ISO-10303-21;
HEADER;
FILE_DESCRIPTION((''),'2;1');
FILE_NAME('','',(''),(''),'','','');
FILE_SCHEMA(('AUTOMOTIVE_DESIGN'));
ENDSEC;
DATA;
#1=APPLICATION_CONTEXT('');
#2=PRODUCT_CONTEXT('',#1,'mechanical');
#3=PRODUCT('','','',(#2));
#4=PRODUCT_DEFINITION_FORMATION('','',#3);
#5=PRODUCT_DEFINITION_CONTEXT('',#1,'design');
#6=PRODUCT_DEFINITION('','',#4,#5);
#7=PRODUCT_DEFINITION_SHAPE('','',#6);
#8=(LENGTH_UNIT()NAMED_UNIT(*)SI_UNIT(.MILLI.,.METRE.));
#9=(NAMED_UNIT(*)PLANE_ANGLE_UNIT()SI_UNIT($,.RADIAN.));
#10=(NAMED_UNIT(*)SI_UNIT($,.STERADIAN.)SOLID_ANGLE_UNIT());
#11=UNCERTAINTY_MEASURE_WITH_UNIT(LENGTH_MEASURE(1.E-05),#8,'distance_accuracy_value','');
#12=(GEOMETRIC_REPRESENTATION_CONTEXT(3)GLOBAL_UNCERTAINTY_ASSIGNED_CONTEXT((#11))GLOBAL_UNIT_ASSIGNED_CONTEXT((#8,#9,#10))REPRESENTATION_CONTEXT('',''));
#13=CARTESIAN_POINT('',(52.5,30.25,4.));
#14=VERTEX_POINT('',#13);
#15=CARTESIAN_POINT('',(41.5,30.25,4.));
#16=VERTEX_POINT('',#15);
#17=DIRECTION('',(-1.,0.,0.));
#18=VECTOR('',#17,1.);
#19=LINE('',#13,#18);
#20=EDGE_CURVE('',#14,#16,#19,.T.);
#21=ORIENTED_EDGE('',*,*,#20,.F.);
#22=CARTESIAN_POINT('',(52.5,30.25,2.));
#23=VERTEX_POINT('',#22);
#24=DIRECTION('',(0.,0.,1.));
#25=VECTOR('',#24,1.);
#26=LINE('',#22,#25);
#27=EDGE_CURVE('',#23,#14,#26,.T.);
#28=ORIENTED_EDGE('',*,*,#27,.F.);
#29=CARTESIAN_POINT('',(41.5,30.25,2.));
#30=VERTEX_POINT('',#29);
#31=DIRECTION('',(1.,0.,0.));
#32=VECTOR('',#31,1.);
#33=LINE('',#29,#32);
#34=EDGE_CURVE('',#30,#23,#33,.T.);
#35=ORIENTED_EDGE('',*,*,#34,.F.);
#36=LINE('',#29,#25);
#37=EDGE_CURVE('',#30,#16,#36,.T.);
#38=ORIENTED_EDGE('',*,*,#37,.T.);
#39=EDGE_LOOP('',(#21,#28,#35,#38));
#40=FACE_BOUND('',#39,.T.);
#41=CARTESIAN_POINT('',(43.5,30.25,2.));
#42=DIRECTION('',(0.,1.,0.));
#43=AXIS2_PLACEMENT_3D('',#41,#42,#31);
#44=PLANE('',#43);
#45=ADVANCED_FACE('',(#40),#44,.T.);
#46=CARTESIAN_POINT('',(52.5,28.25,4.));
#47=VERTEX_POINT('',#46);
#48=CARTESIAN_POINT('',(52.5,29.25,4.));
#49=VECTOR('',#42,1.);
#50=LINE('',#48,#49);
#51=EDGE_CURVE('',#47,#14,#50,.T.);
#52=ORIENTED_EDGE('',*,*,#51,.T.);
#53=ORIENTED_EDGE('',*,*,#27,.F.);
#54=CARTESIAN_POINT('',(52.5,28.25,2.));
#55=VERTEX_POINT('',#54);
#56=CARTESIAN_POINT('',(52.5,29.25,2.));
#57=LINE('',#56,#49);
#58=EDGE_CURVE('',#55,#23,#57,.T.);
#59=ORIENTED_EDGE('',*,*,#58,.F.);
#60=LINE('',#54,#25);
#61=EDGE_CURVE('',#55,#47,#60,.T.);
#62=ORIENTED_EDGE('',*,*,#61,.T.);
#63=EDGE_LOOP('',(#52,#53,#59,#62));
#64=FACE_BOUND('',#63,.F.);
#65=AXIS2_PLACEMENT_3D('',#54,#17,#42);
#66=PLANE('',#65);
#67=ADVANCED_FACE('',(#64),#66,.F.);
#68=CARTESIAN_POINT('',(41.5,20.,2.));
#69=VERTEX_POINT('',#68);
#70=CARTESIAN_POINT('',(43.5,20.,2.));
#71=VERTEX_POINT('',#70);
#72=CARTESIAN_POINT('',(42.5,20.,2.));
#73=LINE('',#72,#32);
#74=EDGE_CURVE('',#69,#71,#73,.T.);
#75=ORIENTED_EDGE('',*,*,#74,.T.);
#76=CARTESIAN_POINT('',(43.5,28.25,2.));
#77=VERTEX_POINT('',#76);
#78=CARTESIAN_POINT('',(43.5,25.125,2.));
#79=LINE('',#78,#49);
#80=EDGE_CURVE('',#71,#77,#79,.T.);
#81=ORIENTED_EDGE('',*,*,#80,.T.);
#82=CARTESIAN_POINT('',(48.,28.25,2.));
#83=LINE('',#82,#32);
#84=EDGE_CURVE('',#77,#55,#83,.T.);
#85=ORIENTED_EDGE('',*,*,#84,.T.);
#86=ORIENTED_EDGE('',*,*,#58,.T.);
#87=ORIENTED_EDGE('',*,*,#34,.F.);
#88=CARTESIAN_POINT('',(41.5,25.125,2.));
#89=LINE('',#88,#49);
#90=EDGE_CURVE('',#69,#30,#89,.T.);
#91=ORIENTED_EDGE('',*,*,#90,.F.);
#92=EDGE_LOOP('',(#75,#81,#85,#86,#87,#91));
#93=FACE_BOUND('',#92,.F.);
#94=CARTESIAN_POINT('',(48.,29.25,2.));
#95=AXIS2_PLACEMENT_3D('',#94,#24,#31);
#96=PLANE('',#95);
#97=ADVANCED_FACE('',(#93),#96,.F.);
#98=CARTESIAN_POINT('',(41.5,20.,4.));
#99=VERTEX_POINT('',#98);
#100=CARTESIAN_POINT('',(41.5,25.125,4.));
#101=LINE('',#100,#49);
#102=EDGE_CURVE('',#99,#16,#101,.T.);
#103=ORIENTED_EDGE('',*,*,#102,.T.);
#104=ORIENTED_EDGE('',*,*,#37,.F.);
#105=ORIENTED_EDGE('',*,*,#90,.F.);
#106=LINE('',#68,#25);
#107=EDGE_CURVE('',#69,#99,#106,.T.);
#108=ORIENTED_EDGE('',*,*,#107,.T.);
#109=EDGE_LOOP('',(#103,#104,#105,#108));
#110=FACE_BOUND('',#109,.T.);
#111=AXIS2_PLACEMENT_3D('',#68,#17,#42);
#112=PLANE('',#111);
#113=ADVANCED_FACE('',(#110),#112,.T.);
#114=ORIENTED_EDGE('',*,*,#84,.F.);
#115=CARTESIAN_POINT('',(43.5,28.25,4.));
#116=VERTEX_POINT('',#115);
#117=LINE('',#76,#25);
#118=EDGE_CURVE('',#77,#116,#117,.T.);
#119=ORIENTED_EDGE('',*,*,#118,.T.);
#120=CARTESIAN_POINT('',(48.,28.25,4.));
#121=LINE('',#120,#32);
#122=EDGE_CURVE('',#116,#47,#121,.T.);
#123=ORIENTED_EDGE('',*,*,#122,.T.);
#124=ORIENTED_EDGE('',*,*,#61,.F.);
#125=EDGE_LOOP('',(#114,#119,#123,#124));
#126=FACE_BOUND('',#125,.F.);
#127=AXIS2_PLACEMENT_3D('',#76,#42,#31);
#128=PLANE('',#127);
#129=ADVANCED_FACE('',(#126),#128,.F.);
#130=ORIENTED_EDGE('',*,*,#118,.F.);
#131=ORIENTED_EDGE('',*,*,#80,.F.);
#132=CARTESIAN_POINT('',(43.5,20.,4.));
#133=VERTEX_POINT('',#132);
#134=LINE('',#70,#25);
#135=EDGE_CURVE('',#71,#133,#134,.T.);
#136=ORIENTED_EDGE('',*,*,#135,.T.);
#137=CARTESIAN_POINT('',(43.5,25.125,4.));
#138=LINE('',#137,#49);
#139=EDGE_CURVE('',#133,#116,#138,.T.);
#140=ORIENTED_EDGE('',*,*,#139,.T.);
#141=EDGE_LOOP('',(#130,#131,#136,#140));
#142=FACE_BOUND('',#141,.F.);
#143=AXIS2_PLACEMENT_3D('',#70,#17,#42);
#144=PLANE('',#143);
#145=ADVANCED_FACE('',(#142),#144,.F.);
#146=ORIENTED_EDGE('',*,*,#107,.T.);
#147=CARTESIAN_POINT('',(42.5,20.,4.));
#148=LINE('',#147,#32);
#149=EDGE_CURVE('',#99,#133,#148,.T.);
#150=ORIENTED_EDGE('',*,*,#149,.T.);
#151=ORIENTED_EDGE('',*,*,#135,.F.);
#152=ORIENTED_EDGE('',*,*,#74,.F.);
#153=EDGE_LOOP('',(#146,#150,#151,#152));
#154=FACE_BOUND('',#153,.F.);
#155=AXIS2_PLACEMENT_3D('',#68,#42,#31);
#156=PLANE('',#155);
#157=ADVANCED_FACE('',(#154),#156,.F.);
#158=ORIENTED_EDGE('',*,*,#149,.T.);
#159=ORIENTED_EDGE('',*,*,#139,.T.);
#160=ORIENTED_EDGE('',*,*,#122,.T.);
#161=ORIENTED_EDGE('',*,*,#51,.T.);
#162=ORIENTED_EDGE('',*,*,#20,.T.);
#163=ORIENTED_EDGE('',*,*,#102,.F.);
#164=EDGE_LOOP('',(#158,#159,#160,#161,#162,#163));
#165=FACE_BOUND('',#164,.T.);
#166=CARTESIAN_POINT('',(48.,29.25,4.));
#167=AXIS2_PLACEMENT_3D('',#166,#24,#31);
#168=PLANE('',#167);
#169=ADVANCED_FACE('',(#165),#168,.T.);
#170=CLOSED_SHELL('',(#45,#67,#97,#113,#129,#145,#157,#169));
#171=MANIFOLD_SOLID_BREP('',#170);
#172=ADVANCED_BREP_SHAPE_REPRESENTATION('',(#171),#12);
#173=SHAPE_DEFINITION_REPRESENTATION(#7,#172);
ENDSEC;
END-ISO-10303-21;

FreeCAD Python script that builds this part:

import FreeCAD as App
import Part
import Sketcher
from FreeCAD import Vector

doc = App.newDocument("Part")
body = doc.addObject("PartDesign::Body", "Body")

sketch1 = doc.addObject("Sketcher::SketchObject", "Sketch")
body.addObject(sketch1)
sketch1.AttachmentSupport = (doc.XY_Plane, [""])
sketch1.MapMode = "FlatFace"
sketch1.AttachmentOffset = App.Placement(Vector(0, 0, 2), App.Rotation())
sketch1.addGeometry([
    Part.LineSegment(Vector(43.5, 30.25, 0), Vector(43.5, 28.25, 0)),
    Part.LineSegment(Vector(43.5, 28.25, 0), Vector(52.5, 28.25, 0)),
    Part.LineSegment(Vector(52.5, 28.25, 0), Vector(52.5, 30.25, 0)),
    Part.LineSegment(Vector(52.5, 30.25, 0), Vector(43.5, 30.25, 0)),
], False)
sketch1.addConstraint([
    Sketcher.Constraint("Coincident", 0, 2, 1, 1),
    Sketcher.Constraint("Coincident", 1, 2, 2, 1),
    Sketcher.Constraint("Coincident", 2, 2, 3, 1),
    Sketcher.Constraint("Coincident", 3, 2, 0, 1),
    Sketcher.Constraint("Vertical", 0),
    Sketcher.Constraint("Horizontal", 1),
    Sketcher.Constraint("Vertical", 2),
    Sketcher.Constraint("Horizontal", 3),
    Sketcher.Constraint("DistanceX", 1, 1, 1, 2, 9.0),
    Sketcher.Constraint("DistanceY", 0, 2, 0, 1, 2.0),
    Sketcher.Constraint("DistanceX", -1, 1, 0, 2, 43.5),
    Sketcher.Constraint("DistanceY", -1, 1, 0, 2, 28.25),
])
pad1 = doc.addObject("PartDesign::Pad", "Pad")
body.addObject(pad1)
pad1.Profile = sketch1
pad1.Length = 2
body2 = doc.addObject("PartDesign::Body", "Body001")

sketch2 = doc.addObject("Sketcher::SketchObject", "Sketch001")
body2.addObject(sketch2)
sketch2.AttachmentSupport = (doc.getObject("XY_Plane001"), [""])
sketch2.MapMode = "FlatFace"
sketch2.AttachmentOffset = App.Placement(Vector(0, 0, 2), App.Rotation())
sketch2.addGeometry([
    Part.LineSegment(Vector(41.5, 30.25, 0), Vector(41.5, 20, 0)),
    Part.LineSegment(Vector(41.5, 20, 0), Vector(43.5, 20, 0)),
    Part.LineSegment(Vector(43.5, 20, 0), Vector(43.5, 30.25, 0)),
    Part.LineSegment(Vector(43.5, 30.25, 0), Vector(41.5, 30.25, 0)),
], False)
sketch2.addConstraint([
    Sketcher.Constraint("Coincident", 0, 2, 1, 1),
    Sketcher.Constraint("Coincident", 1, 2, 2, 1),
    Sketcher.Constraint("Coincident", 2, 2, 3, 1),
    Sketcher.Constraint("Coincident", 3, 2, 0, 1),
    Sketcher.Constraint("Vertical", 0),
    Sketcher.Constraint("Horizontal", 1),
    Sketcher.Constraint("Vertical", 2),
    Sketcher.Constraint("Horizontal", 3),
    Sketcher.Constraint("DistanceX", 1, 1, 1, 2, 2.0),
    Sketcher.Constraint("DistanceY", -1, 1, 0, 2, 20.0),
    Sketcher.Constraint("DistanceY", 0, 2, 0, 1, 10.25),
    Sketcher.Constraint("DistanceX", -1, 1, 0, 2, 41.5),
])
pad2 = doc.addObject("PartDesign::Pad", "Pad001")
body2.addObject(pad2)
pad2.Profile = sketch2
pad2.Length = 2
doc.recompute()

boolean = doc.addObject("PartDesign::Boolean", "Boolean")
body2.addObject(boolean)
boolean.Type = "Fuse"
boolean.addObjects([body])

doc.recompute()
